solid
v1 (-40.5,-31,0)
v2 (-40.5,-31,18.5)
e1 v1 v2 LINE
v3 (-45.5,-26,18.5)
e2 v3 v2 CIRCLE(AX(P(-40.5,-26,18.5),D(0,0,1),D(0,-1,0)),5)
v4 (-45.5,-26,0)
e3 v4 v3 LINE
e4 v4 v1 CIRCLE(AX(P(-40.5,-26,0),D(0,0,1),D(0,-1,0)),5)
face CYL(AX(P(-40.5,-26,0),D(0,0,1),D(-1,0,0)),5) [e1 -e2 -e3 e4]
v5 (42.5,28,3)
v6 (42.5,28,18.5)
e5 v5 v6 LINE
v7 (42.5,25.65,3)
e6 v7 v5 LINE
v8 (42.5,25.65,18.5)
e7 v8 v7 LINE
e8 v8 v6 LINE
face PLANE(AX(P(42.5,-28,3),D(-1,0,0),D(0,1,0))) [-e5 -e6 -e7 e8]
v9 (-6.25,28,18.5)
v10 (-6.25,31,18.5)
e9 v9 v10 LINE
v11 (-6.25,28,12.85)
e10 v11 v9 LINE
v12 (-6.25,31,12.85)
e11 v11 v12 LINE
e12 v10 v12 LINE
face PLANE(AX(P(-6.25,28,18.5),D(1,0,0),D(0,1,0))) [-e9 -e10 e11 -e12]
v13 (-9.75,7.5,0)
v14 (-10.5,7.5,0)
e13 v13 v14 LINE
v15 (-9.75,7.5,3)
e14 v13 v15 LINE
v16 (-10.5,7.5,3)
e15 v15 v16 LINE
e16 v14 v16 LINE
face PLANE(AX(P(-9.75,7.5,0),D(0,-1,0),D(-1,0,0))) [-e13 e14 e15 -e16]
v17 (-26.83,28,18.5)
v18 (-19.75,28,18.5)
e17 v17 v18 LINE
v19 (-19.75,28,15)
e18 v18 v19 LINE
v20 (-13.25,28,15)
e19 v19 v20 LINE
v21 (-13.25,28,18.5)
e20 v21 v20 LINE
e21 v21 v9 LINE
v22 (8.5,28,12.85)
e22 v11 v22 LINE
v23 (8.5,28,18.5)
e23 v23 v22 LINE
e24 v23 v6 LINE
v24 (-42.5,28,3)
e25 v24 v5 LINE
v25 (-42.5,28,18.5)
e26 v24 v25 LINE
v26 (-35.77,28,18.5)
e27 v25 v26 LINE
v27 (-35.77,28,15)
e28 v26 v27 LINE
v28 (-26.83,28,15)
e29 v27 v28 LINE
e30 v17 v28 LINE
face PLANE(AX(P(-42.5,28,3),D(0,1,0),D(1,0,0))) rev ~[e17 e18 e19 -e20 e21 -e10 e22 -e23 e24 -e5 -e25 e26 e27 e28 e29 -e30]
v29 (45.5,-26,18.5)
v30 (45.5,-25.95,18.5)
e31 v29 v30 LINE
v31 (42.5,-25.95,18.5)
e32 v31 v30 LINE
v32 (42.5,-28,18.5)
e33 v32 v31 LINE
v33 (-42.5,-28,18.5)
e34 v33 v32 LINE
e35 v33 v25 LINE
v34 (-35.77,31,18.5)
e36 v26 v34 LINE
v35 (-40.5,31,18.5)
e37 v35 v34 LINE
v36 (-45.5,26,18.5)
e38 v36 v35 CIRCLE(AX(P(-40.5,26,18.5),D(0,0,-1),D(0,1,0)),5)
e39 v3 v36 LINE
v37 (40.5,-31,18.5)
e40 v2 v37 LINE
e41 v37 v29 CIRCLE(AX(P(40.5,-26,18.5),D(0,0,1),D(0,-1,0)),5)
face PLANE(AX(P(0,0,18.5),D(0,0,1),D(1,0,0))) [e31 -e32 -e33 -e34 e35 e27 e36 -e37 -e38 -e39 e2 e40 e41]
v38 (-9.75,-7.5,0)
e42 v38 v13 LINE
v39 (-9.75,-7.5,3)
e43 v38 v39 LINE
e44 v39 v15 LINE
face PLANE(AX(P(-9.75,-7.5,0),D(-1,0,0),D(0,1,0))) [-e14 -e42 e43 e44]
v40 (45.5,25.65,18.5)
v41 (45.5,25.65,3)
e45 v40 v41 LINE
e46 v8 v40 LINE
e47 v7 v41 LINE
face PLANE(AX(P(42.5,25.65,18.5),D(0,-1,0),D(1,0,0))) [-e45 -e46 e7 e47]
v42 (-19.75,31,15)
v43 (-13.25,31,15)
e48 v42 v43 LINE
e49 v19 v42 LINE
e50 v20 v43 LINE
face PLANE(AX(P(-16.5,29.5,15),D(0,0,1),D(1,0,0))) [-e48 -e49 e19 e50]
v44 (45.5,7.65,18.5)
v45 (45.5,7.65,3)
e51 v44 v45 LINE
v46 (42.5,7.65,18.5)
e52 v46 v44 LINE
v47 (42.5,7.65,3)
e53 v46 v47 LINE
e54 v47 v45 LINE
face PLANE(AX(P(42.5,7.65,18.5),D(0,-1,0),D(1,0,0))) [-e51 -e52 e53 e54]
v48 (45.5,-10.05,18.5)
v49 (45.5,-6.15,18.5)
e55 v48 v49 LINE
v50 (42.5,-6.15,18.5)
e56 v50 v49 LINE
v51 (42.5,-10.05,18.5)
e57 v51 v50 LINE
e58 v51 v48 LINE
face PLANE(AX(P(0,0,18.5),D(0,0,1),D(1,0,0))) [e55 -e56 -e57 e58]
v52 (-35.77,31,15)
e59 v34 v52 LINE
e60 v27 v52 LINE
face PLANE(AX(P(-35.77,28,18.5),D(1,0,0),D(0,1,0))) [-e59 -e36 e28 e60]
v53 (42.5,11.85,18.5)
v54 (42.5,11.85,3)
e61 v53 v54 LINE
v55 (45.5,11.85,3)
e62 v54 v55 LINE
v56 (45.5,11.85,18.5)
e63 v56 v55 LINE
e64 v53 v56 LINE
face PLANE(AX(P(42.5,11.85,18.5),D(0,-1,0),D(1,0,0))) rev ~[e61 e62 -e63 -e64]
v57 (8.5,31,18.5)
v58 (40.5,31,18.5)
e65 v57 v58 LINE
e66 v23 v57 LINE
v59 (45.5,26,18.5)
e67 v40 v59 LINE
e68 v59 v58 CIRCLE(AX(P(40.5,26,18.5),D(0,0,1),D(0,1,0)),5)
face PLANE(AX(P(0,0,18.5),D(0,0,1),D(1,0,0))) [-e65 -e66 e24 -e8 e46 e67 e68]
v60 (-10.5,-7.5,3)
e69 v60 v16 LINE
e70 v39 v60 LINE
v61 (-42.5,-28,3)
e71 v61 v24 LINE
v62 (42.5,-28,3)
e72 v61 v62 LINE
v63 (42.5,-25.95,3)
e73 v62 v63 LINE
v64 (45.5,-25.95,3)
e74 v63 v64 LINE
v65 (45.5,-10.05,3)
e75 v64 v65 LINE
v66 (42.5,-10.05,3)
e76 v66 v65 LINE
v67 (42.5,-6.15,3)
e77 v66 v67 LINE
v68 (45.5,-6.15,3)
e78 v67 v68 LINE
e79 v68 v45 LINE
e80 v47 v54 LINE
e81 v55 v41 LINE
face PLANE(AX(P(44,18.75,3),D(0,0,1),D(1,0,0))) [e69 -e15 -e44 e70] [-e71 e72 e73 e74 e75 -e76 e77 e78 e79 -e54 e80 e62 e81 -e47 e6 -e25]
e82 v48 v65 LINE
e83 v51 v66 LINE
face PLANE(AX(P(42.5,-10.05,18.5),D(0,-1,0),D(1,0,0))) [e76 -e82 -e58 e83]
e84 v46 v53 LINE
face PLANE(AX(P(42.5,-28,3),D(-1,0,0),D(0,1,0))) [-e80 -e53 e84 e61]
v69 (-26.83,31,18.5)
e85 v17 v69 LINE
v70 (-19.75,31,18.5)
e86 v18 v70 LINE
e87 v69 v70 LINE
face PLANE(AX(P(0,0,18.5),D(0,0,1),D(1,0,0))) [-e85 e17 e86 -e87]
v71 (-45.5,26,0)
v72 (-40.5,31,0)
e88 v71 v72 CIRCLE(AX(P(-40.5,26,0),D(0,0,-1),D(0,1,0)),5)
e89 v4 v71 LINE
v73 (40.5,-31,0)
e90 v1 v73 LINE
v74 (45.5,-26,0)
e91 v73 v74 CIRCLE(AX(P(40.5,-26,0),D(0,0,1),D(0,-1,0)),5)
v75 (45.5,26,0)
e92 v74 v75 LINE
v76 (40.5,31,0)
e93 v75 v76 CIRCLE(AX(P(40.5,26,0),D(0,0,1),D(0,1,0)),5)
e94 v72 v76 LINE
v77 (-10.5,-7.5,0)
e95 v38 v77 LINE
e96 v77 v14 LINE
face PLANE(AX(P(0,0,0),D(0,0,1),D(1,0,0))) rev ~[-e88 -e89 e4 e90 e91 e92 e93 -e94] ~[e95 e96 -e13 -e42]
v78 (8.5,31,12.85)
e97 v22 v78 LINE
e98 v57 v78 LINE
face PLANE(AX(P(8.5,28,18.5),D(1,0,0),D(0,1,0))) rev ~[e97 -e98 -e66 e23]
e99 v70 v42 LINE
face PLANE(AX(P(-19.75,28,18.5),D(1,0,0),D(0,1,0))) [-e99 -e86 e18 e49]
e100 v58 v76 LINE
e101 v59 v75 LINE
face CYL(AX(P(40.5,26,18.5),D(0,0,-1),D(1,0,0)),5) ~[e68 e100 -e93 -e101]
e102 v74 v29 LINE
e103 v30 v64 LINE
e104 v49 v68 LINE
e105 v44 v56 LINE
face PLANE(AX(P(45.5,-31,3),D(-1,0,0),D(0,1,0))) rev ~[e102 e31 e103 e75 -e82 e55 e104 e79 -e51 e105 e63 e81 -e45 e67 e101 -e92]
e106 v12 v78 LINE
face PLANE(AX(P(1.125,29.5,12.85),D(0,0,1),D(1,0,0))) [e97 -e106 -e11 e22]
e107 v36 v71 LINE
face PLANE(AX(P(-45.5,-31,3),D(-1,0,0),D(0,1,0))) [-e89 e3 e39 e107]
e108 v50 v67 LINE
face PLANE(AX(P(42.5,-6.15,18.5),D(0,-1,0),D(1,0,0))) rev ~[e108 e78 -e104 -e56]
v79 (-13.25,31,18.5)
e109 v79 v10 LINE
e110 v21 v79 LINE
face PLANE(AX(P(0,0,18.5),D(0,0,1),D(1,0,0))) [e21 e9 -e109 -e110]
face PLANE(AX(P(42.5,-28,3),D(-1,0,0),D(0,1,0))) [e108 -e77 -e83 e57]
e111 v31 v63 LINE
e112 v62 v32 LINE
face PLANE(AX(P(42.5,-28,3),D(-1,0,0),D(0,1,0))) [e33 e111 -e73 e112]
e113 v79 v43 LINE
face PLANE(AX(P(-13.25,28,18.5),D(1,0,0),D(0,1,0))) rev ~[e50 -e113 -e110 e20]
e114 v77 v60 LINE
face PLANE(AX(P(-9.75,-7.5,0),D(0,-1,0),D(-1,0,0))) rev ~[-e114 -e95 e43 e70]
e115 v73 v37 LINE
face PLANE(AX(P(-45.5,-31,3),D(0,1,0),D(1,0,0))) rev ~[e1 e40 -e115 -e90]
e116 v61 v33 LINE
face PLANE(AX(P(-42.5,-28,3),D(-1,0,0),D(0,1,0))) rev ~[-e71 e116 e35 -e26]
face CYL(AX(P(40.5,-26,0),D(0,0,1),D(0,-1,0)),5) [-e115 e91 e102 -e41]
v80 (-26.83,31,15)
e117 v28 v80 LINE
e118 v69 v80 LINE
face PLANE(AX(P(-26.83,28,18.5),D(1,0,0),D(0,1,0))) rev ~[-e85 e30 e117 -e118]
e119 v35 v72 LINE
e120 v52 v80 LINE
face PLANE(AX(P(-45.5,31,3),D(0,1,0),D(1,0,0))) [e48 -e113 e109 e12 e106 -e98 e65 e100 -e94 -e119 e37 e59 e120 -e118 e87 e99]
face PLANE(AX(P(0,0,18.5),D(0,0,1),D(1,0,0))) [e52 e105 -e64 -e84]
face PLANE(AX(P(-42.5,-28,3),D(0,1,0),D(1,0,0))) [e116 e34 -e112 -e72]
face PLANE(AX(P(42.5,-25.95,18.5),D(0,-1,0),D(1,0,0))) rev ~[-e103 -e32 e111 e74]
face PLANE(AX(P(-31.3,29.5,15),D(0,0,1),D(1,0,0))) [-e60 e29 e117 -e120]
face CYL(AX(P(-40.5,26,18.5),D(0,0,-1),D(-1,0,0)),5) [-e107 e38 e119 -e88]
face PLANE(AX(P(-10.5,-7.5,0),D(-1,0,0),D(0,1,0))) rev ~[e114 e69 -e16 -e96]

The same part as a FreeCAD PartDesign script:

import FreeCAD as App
import Part
import Sketcher


def edges_at(feature, points):
    """Names of the edges that pass closest to the given points."""
    edges = feature.Shape.Edges
    near = lambda p: min(range(len(edges)), key=lambda i: edges[i].distToShape(Part.Vertex(*p))[0])
    return sorted({f"Edge{near(p) + 1}" for p in points})


def add_polygon(sketch, points):
    """Adds a closed chain of lines whose ends are joined by coincident constraints."""
    first, n = sketch.GeometryCount, len(points)
    for a, b in zip(points, points[1:] + points[:1]):
        sketch.addGeometry(Part.LineSegment(App.Vector(*a, 0), App.Vector(*b, 0)), False)
    for i in range(n):
        sketch.addConstraint(Sketcher.Constraint("Coincident", first + i, 2, first + (i + 1) % n, 1))

doc = App.newDocument("Part")
body = doc.addObject("PartDesign::Body", "Body")

# Sketch on XY plane
sketch1 = body.newObject("Sketcher::SketchObject", "Sketch")
sketch1.AttachmentSupport = (doc.getObject("XY_Plane"), [""])
sketch1.MapMode = "FlatFace"
add_polygon(sketch1, [(-46, 31), (-46, -31), (46, -31), (46, 31)])  # lines 0-3
sketch1.addConstraint(Sketcher.Constraint("Vertical", 0))
sketch1.addConstraint(Sketcher.Constraint("Horizontal", 1))
sketch1.addConstraint(Sketcher.Constraint("Vertical", 2))
sketch1.addConstraint(Sketcher.Constraint("Horizontal", 3))
sketch1.addConstraint(Sketcher.Constraint("Symmetric", 0, 2, 2, 2, -1, 1))
sketch1.addConstraint(Sketcher.Constraint("DistanceX", 1, 1, 1, 2, 91.0))
sketch1.addConstraint(Sketcher.Constraint("DistanceY", 0, 2, 0, 1, 62.0))
pad1 = body.newObject("PartDesign::Pad", "Pad")
pad1.Profile = sketch1
pad1.Length = 3

# Sketch on XY plane
sketch2 = body.newObject("Sketcher::SketchObject", "Sketch001")
sketch2.AttachmentSupport = (doc.getObject("XY_Plane"), [""])
sketch2.MapMode = "FlatFace"
sketch2.AttachmentOffset = App.Placement(App.Vector(0, 0, 3), App.Rotation())
add_polygon(sketch2, [(-46, 31), (-46, -31), (46, -31), (46, 31)])  # lines 0-3
add_polygon(sketch2, [(42, -28), (-42, -28), (-42, 28), (42, 28)])  # lines 4-7
sketch2.addConstraint(Sketcher.Constraint("Vertical", 0))
sketch2.addConstraint(Sketcher.Constraint("Horizontal", 1))
sketch2.addConstraint(Sketcher.Constraint("Vertical", 2))
sketch2.addConstraint(Sketcher.Constraint("Horizontal", 3))
sketch2.addConstraint(Sketcher.Constraint("Horizontal", 4))
sketch2.addConstraint(Sketcher.Constraint("Vertical", 5))
sketch2.addConstraint(Sketcher.Constraint("Horizontal", 6))
sketch2.addConstraint(Sketcher.Constraint("Vertical", 7))
sketch2.addConstraint(Sketcher.Constraint("Symmetric", 0, 2, 2, 2, -1, 1))
sketch2.addConstraint(Sketcher.Constraint("Symmetric", 4, 2, 6, 2, -1, 1))
sketch2.addConstraint(Sketcher.Constraint("DistanceX", 1, 1, 1, 2, 91.0))
sketch2.addConstraint(Sketcher.Constraint("DistanceX", 4, 2, 4, 1, 85.0))
sketch2.addConstraint(Sketcher.Constraint("DistanceY", 0, 2, 0, 1, 62.0))
sketch2.addConstraint(Sketcher.Constraint("DistanceY", 5, 1, 5, 2, 56.0))
pad2 = body.newObject("PartDesign::Pad", "Pad001")
pad2.Profile = sketch2
pad2.Length = 15.5
doc.recompute()

fillet = body.newObject("PartDesign::Fillet", "Fillet")
fillet.Base = (pad2, edges_at(pad2, [
    (45.5, -31, 9.25),
    (-45.5, -31, 9.25),
    (-45.5, 31, 9.25),
    (45.5, 31, 9.25),
]))
fillet.Radius = 5

# Sketch on XY plane
sketch3 = body.newObject("Sketcher::SketchObject", "Sketch002")
sketch3.AttachmentSupport = (doc.getObject("XY_Plane"), [""])
sketch3.MapMode = "FlatFace"
sketch3.AttachmentOffset = App.Placement(App.Vector(0, 0, 18.5), App.Rotation())
add_polygon(sketch3, [(42.5, -10.1), (42.5, -25.9), (45.5, -25.9), (45.5, -10.1)])  # lines 0-3
add_polygon(sketch3, [(42.5, 7.7), (42.5, -6.2), (45.5, -6.2), (45.5, 7.7)])  # lines 4-7
add_polygon(sketch3, [(42.5, 25.6), (42.5, 11.8), (45.5, 11.8), (45.5, 25.6)])  # lines 8-11
sketch3.addConstraint(Sketcher.Constraint("Vertical", 0))
sketch3.addConstraint(Sketcher.Constraint("Horizontal", 1))
sketch3.addConstraint(Sketcher.Constraint("Vertical", 2))
sketch3.addConstraint(Sketcher.Constraint("Horizontal", 3))
sketch3.addConstraint(Sketcher.Constraint("Vertical", 4))
sketch3.addConstraint(Sketcher.Constraint("Horizontal", 5))
sketch3.addConstraint(Sketcher.Constraint("Vertical", 6))
sketch3.addConstraint(Sketcher.Constraint("Horizontal", 7))
sketch3.addConstraint(Sketcher.Constraint("Vertical", 8))
sketch3.addConstraint(Sketcher.Constraint("Horizontal", 9))
sketch3.addConstraint(Sketcher.Constraint("Vertical", 10))
sketch3.addConstraint(Sketcher.Constraint("Horizontal", 11))
sketch3.addConstraint(Sketcher.Constraint("Vertical", 3, 2, 4, 2))
sketch3.addConstraint(Sketcher.Constraint("Vertical", 2, 2, 5, 2))
sketch3.addConstraint(Sketcher.Constraint("Vertical", 7, 2, 8, 2))
sketch3.addConstraint(Sketcher.Constraint("Vertical", 6, 2, 9, 2))
sketch3.addConstraint(Sketcher.Constraint("Equal", 6, 8))
sketch3.addConstraint(Sketcher.Constraint("DistanceX", 1, 1, 1, 2, 3.0))
sketch3.addConstraint(Sketcher.Constraint("DistanceY", 0, 2, 0, 1, 15.9))
sketch3.addConstraint(Sketcher.Constraint("DistanceY", 4, 2, 4, 1, 13.8))
sketch3.addConstraint(Sketcher.Constraint("DistanceY", 4, 2, 8, 2, 18.0))
sketch3.addConstraint(Sketcher.Constraint("DistanceX", -1, 1, 0, 2, 42.5))
sketch3.addConstraint(Sketcher.Constraint("DistanceY", 3, 2, 4, 2, 3.9))
sketch3.addConstraint(Sketcher.Constraint("DistanceY", 0, 2, -1, 1, 25.95))
pocket1 = body.newObject("PartDesign::Pocket", "Pocket")
pocket1.Profile = sketch3
pocket1.Length = 15.5

# Sketch on XY plane
sketch4 = body.newObject("Sketcher::SketchObject", "Sketch003")
sketch4.AttachmentSupport = (doc.getObject("XY_Plane"), [""])
sketch4.MapMode = "FlatFace"
sketch4.AttachmentOffset = App.Placement(App.Vector(0, 0, 18.5), App.Rotation())
add_polygon(sketch4, [(-35.8, 31), (-35.8, 28), (-26.8, 28), (-26.8, 31)])  # lines 0-3
add_polygon(sketch4, [(-19.8, 31), (-19.8, 28), (-13.2, 28), (-13.2, 31)])  # lines 4-7
add_polygon(sketch4, [(-6.2, 31), (-6.2, 28), (0.2, 28), (0.2, 31)])  # lines 8-11
sketch4.addConstraint(Sketcher.Constraint("Vertical", 0))
sketch4.addConstraint(Sketcher.Constraint("Horizontal", 1))
sketch4.addConstraint(Sketcher.Constraint("Vertical", 2))
sketch4.addConstraint(Sketcher.Constraint("Horizontal", 3))
sketch4.addConstraint(Sketcher.Constraint("Vertical", 4))
sketch4.addConstraint(Sketcher.Constraint("Horizontal", 5))
sketch4.addConstraint(Sketcher.Constraint("Vertical", 6))
sketch4.addConstraint(Sketcher.Constraint("Horizontal", 7))
sketch4.addConstraint(Sketcher.Constraint("Vertical", 8))
sketch4.addConstraint(Sketcher.Constraint("Horizontal", 9))
sketch4.addConstraint(Sketcher.Constraint("Vertical", 10))
sketch4.addConstraint(Sketcher.Constraint("Horizontal", 11))
sketch4.addConstraint(Sketcher.Constraint("Horizontal", 1, 2, 4, 2))
sketch4.addConstraint(Sketcher.Constraint("Horizontal", 3, 2, 6, 2))
sketch4.addConstraint(Sketcher.Constraint("Horizontal", 5, 2, 8, 2))
sketch4.addConstraint(Sketcher.Constraint("Horizontal", 7, 2, 10, 2))
sketch4.addConstraint(Sketcher.Constraint("Equal", 7, 9))
sketch4.addConstraint(Sketcher.Constraint("DistanceY", 0, 2, 0, 1, 3.0))
sketch4.addConstraint(Sketcher.Constraint("DistanceX", 5, 1, 5, 2, 6.5))
sketch4.addConstraint(Sketcher.Constraint("DistanceY", -1, 1, 0, 2, 28.0))
sketch4.addConstraint(Sketcher.Constraint("DistanceX", 5, 2, 8, 2, 7.0))
sketch4.addConstraint(Sketcher.Constraint("DistanceX", 1, 1, 1, 2, 8.94))
sketch4.addConstraint(Sketcher.Constraint("DistanceX", 0, 2, -1, 1, 35.77))
sketch4.addConstraint(Sketcher.Constraint("DistanceX", 4, 2, -1, 1, 19.75))
pocket2 = body.newObject("PartDesign::Pocket", "Pocket001")
pocket2.Profile = sketch4
pocket2.Length = 3.5

# Sketch on XY plane
sketch5 = body.newObject("Sketcher::SketchObject", "Sketch004")
sketch5.AttachmentSupport = (doc.getObject("XY_Plane"), [""])
sketch5.MapMode = "FlatFace"
sketch5.AttachmentOffset = App.Placement(App.Vector(0, 0, 18.5), App.Rotation())
add_polygon(sketch5, [(-6.2, 31), (-6.2, 28), (8.5, 28), (8.5, 31)])  # lines 0-3
sketch5.addConstraint(Sketcher.Constraint("Vertical", 0))
sketch5.addConstraint(Sketcher.Constraint("Horizontal", 1))
sketch5.addConstraint(Sketcher.Constraint("Vertical", 2))
sketch5.addConstraint(Sketcher.Constraint("Horizontal", 3))
sketch5.addConstraint(Sketcher.Constraint("DistanceY", 0, 2, 0, 1, 3.0))
sketch5.addConstraint(Sketcher.Constraint("DistanceY", -1, 1, 0, 2, 28.0))
sketch5.addConstraint(Sketcher.Constraint("DistanceX", 1, 1, 1, 2, 14.75))
sketch5.addConstraint(Sketcher.Constraint("DistanceX", -1, 1, 1, 2, 8.5))
pocket3 = body.newObject("PartDesign::Pocket", "Pocket002")
pocket3.Profile = sketch5
pocket3.Length = 5.65

# Sketch on XY plane
sketch6 = body.newObject("Sketcher::SketchObject", "Sketch005")
sketch6.AttachmentSupport = (doc.getObject("XY_Plane"), [""])
sketch6.MapMode = "FlatFace"
add_polygon(sketch6, [(-9.8, 7.5), (-9.8, -7.5), (-10.5, -7.5), (-10.5, 7.5)])  # lines 0-3
sketch6.addConstraint(Sketcher.Constraint("Vertical", 0))
sketch6.addConstraint(Sketcher.Constraint("Horizontal", 1))
sketch6.addConstraint(Sketcher.Constraint("Vertical", 2))
sketch6.addConstraint(Sketcher.Constraint("Horizontal", 3))
sketch6.addConstraint(Sketcher.Constraint("DistanceY", 0, 2, 0, 1, 15.0))
sketch6.addConstraint(Sketcher.Constraint("DistanceX", 1, 2, 1, 1, 0.75))
sketch6.addConstraint(Sketcher.Constraint("DistanceY", 0, 2, -1, 1, 7.5))
sketch6.addConstraint(Sketcher.Constraint("DistanceX", 1, 2, -1, 1, 10.5))
pocket4 = body.newObject("PartDesign::Pocket", "Pocket003")
pocket4.Profile = sketch6
pocket4.Length = 3
pocket4.Reversed = True

doc.recompute()
